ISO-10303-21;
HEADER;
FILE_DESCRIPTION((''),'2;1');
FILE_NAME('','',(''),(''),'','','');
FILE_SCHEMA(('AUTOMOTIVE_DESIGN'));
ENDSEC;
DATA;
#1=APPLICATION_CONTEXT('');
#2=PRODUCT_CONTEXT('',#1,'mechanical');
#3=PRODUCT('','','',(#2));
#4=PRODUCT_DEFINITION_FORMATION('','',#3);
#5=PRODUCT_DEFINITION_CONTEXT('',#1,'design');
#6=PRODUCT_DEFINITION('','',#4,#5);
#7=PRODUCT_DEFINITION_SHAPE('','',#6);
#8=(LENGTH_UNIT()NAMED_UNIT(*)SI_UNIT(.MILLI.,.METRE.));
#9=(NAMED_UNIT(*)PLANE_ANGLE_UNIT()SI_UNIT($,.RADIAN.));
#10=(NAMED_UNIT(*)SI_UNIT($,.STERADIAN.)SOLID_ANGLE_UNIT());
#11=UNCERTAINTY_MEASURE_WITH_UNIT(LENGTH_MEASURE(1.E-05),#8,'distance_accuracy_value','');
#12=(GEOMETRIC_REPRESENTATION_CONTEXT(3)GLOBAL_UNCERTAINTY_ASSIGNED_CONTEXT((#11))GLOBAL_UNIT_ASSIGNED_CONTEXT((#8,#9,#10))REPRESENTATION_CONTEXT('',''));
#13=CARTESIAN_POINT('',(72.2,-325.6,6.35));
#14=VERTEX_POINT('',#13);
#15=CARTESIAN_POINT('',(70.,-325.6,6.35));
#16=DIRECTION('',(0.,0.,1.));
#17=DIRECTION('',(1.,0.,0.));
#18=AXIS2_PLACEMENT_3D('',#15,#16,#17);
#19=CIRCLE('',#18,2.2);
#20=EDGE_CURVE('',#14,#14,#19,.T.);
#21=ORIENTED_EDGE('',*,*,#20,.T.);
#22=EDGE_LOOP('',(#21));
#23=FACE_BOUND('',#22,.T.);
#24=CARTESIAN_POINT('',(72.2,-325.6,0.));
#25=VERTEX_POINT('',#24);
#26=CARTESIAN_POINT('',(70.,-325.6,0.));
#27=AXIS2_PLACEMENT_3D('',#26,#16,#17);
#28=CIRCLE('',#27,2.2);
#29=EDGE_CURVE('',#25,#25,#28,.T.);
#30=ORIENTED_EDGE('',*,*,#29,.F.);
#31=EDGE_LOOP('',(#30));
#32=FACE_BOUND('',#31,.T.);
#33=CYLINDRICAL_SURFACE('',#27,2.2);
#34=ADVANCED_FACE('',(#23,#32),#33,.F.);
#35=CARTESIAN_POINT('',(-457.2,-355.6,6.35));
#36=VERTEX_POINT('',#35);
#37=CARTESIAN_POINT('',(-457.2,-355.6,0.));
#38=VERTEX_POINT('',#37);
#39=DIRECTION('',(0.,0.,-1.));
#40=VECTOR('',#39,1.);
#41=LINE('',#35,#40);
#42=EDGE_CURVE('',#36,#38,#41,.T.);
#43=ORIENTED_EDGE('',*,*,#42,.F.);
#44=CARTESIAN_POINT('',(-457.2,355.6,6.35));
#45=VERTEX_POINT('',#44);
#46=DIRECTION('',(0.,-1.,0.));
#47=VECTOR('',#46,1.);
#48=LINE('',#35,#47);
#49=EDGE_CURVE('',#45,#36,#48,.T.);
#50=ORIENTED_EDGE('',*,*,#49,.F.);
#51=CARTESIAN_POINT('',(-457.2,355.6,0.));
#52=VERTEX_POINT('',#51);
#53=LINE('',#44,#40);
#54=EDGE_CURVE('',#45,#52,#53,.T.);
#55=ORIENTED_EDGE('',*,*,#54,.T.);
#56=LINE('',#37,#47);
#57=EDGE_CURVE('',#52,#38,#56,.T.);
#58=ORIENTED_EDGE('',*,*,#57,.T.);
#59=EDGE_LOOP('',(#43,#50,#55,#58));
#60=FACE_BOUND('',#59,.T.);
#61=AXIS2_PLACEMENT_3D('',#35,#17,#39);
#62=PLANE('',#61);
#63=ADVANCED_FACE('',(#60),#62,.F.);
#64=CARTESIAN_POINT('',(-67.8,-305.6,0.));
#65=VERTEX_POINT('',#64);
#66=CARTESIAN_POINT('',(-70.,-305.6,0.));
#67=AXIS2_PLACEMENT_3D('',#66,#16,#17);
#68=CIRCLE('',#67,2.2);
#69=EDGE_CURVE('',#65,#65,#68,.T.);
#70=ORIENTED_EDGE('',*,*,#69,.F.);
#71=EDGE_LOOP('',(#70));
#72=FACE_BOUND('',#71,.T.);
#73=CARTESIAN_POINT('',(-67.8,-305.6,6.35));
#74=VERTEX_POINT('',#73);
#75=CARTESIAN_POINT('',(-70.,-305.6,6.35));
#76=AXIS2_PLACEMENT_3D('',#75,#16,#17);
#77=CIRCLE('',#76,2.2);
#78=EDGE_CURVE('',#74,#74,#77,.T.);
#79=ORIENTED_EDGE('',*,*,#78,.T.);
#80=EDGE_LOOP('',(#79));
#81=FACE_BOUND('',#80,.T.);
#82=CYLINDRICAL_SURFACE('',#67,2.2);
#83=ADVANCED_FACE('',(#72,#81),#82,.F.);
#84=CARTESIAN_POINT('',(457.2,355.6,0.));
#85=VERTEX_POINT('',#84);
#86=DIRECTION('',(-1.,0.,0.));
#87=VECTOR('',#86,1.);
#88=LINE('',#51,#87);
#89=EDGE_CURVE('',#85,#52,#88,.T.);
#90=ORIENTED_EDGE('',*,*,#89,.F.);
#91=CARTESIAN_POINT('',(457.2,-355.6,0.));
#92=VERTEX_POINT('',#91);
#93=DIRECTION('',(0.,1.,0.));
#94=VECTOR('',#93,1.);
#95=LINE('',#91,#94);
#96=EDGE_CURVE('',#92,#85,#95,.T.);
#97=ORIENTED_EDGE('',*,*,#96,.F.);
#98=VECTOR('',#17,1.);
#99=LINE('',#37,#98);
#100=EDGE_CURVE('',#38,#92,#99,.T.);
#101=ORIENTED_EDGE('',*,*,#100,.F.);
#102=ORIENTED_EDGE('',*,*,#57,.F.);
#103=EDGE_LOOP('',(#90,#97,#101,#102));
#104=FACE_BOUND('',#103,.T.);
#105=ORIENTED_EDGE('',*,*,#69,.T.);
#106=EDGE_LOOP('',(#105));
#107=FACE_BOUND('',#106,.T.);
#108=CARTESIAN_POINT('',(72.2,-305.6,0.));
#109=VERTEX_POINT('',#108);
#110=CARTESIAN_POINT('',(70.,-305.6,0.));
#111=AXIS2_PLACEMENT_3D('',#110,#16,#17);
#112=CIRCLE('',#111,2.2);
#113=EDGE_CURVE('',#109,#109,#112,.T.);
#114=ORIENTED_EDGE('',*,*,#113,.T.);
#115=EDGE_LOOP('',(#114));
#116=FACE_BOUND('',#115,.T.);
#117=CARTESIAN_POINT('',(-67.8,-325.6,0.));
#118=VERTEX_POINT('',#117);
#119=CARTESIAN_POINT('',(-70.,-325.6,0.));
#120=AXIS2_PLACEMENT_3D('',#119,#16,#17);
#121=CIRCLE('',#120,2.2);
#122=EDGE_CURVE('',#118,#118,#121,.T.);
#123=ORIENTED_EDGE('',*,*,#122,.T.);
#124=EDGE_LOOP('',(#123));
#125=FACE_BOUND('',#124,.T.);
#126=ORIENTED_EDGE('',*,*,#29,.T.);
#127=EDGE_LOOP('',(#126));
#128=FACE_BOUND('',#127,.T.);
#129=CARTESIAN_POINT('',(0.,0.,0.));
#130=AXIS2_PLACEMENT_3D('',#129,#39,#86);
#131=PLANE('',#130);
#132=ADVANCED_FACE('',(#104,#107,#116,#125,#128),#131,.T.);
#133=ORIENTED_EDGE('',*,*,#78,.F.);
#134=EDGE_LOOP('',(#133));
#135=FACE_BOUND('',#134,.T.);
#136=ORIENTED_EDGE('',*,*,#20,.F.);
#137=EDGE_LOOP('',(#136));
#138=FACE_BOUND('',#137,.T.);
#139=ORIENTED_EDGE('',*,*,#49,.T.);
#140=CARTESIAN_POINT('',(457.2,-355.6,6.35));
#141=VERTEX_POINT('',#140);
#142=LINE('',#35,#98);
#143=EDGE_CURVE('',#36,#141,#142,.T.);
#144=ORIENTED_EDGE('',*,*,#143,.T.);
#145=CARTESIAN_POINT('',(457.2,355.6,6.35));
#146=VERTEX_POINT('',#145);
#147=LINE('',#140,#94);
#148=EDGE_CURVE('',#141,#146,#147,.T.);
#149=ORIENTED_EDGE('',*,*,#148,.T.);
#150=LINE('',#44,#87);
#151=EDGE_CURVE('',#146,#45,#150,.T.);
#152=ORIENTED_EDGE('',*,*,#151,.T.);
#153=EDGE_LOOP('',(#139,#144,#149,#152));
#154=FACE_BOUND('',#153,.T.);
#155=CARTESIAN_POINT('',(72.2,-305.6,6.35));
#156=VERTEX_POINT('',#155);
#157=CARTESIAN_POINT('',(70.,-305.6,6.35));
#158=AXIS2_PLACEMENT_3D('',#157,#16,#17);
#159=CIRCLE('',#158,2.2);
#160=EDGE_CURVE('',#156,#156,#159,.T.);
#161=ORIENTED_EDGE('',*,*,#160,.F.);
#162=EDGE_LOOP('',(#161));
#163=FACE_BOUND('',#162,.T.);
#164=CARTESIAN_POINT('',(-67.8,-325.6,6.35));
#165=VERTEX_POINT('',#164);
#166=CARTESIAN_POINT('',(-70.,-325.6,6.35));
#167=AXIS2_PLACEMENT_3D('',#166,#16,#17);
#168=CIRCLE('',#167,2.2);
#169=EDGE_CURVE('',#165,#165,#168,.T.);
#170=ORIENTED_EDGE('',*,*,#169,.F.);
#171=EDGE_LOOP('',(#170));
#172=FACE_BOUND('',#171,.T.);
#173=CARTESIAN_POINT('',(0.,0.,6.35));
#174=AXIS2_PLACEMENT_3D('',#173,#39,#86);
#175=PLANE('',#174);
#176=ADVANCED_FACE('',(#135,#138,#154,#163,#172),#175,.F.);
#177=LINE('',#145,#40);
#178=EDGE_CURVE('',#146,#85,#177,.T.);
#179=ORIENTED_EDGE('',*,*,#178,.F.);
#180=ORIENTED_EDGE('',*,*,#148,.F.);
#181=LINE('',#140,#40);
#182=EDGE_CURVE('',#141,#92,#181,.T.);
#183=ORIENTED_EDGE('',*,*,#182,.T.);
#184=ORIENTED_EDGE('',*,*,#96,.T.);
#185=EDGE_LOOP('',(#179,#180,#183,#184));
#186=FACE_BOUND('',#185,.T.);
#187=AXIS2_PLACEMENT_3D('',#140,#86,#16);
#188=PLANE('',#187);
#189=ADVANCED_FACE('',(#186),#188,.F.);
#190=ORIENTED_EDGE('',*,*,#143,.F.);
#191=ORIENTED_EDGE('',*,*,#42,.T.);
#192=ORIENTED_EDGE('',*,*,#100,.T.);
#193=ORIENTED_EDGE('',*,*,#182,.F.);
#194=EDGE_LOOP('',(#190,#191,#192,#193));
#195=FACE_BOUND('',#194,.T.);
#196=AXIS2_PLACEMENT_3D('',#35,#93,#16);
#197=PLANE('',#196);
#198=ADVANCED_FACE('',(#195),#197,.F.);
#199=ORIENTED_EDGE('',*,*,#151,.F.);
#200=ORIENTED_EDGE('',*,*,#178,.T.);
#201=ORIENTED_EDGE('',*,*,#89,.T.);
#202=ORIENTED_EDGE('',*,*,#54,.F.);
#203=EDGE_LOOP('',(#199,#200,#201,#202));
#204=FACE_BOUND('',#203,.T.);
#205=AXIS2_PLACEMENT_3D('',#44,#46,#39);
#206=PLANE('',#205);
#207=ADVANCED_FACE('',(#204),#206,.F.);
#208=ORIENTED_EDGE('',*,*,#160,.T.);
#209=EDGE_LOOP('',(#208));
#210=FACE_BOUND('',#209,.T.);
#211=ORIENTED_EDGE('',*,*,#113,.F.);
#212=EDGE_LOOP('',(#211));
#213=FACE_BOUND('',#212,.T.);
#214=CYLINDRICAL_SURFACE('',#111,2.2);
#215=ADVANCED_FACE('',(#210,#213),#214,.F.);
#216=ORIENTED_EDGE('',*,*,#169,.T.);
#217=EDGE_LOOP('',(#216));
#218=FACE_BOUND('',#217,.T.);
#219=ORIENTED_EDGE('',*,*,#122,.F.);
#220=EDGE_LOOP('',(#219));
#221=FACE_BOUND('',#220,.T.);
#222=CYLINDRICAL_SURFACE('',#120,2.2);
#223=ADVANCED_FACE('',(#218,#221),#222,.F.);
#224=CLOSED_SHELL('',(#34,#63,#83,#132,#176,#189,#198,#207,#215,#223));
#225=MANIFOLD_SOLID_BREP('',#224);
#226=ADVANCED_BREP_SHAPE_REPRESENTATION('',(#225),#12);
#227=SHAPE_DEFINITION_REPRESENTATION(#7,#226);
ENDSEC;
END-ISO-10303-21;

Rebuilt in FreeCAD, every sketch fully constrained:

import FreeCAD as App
import Part
import Sketcher

V = App.Vector
Q = App.Units.Quantity

doc = App.newDocument("Part")
body = doc.addObject("PartDesign::Body", "Body")

sketch1 = body.newObject("Sketcher::SketchObject", "Sketch")
sketch1.AttachmentSupport = (doc.getObject("XY_Plane"), [""])
sketch1.MapMode = "FlatFace"
sketch1.addGeometry([
    Part.LineSegment(V(-457, 356, 0), V(-457, -356, 0)),
    Part.LineSegment(V(-457, -356, 0), V(457, -356, 0)),
    Part.LineSegment(V(457, -356, 0), V(457, 356, 0)),
    Part.LineSegment(V(457, 356, 0), V(-457, 356, 0)),
], False)
sketch1.addConstraint([
    Sketcher.Constraint("Coincident", 0, 2, 1, 1),
    Sketcher.Constraint("Coincident", 1, 2, 2, 1),
    Sketcher.Constraint("Coincident", 2, 2, 3, 1),
    Sketcher.Constraint("Coincident", 3, 2, 0, 1),
    Sketcher.Constraint("Vertical", 0),
    Sketcher.Constraint("Horizontal", 1),
    Sketcher.Constraint("Vertical", 2),
    Sketcher.Constraint("Horizontal", 3),
    Sketcher.Constraint("Symmetric", 0, 2, 2, 2, -1, 1),
    Sketcher.Constraint("DistanceX", 1, 1, 1, 2, Q("36 in")),
    Sketcher.Constraint("DistanceY", 0, 2, 0, 1, Q("28 in")),
])
pad1 = body.newObject("PartDesign::Pad", "Pad")
pad1.Profile = sketch1
pad1.Length = Q("0.25 in")

sketch2 = body.newObject("Sketcher::SketchObject", "Sketch001")
sketch2.AttachmentSupport = (doc.getObject("XY_Plane"), [""])
sketch2.MapMode = "FlatFace"
sketch2.AttachmentOffset = App.Placement(V(0, 0, 0.25 * 25.4), App.Rotation())
sketch2.addGeometry([
    Part.Circle(V(70, -305.6, 0), V(0, 0, 1), 2.2),
    Part.Circle(V(70, -325.6, 0), V(0, 0, 1), 2.2),
    Part.Circle(V(-70, -305.6, 0), V(0, 0, 1), 2.2),
    Part.Circle(V(-70, -325.6, 0), V(0, 0, 1), 2.2),
], False)
sketch2.addConstraint([
    Sketcher.Constraint("Equal", 0, 1),
    Sketcher.Constraint("Equal", 1, 2),
    Sketcher.Constraint("Equal", 2, 3),
    Sketcher.Constraint("Symmetric", 0, 3, 2, 3, -2),
    Sketcher.Constraint("Symmetric", 1, 3, 3, 3, -2),
    Sketcher.Constraint("Vertical", 0, 3, 1, 3),
    Sketcher.Constraint("Diameter", 0, 4.4),
    Sketcher.Constraint("DistanceX", -1, 1, 0, 3, 70.0),
    Sketcher.Constraint("DistanceY", 0, 3, -1, 1, 305.6),
    Sketcher.Constraint("DistanceY", 1, 3, -1, 1, 325.6),
])
pocket1 = body.newObject("PartDesign::Pocket", "Pocket")
pocket1.Profile = sketch2
pocket1.Type = "ThroughAll"

doc.recompute()
